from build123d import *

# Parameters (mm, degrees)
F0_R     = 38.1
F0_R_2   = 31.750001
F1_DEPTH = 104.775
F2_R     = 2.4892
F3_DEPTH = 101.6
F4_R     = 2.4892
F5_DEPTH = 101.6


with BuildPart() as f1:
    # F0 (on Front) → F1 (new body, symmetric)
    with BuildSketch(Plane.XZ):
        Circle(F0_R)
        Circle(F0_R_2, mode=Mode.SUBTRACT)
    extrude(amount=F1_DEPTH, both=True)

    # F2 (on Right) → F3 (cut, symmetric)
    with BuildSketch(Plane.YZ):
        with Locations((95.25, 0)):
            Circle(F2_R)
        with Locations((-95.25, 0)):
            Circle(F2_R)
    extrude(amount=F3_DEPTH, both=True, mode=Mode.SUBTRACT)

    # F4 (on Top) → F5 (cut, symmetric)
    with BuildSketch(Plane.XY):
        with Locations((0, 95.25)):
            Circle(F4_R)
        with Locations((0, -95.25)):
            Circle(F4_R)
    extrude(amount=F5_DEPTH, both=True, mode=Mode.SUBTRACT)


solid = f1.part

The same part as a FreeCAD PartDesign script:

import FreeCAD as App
import Part
import Sketcher

V = App.Vector
Q = App.Units.Quantity

doc = App.newDocument("Part")
body = doc.addObject("PartDesign::Body", "Body")

sketch1 = body.newObject("Sketcher::SketchObject", "Sketch")
sketch1.AttachmentSupport = (doc.getObject("XZ_Plane"), [""])
sketch1.MapMode = "FlatFace"
sketch1.addGeometry([
    Part.Circle(V(0, 0, 0), V(0, 0, 1), 38.1),
    Part.Circle(V(0, 0, 0), V(0, 0, 1), 31.750001),
], False)
sketch1.addConstraint([
    Sketcher.Constraint("Coincident", 0, 3, -1, 1),
    Sketcher.Constraint("Coincident", 1, 3, -1, 1),
    Sketcher.Constraint("Diameter", 0, Q("3 in")),
    Sketcher.Constraint("Diameter", 1, Q("2.5000001 in")),
])
pad1 = body.newObject("PartDesign::Pad", "Pad")
pad1.Profile = sketch1
pad1.Length = Q("8.25 in")
pad1.Midplane = True

sketch2 = body.newObject("Sketcher::SketchObject", "Sketch001")
sketch2.AttachmentSupport = (doc.getObject("YZ_Plane"), [""])
sketch2.MapMode = "FlatFace"
sketch2.addGeometry([
    Part.Circle(V(95.25, 0, 0), V(0, 0, 1), 2.4892),
    Part.Circle(V(-95.25, 0, 0), V(0, 0, 1), 2.4892),
], False)
sketch2.addConstraint([
    Sketcher.Constraint("Equal", 0, 1),
    Sketcher.Constraint("Symmetric", 0, 3, 1, 3, -1, 1),
    Sketcher.Constraint("PointOnObject", 0, 3, -1),
    Sketcher.Constraint("Diameter", 0, Q("0.196 in")),
    Sketcher.Constraint("DistanceX", 1, 3, 0, 3, Q("7.5 in")),
])
pocket1 = body.newObject("PartDesign::Pocket", "Pocket")
pocket1.Profile = sketch2
pocket1.Length = Q("8 in")
pocket1.Midplane = True

sketch3 = body.newObject("Sketcher::SketchObject", "Sketch002")
sketch3.AttachmentSupport = (doc.getObject("XY_Plane"), [""])
sketch3.MapMode = "FlatFace"
sketch3.addGeometry([
    Part.Circle(V(0, 95.25, 0), V(0, 0, 1), 2.4892),
    Part.Circle(V(0, -95.25, 0), V(0, 0, 1), 2.4892),
], False)
sketch3.addConstraint([
    Sketcher.Constraint("Equal", 0, 1),
    Sketcher.Constraint("Symmetric", 0, 3, 1, 3, -1, 1),
    Sketcher.Constraint("PointOnObject", 0, 3, -2),
    Sketcher.Constraint("Diameter", 0, Q("0.196 in")),
    Sketcher.Constraint("DistanceY", 1, 3, 0, 3, Q("7.5 in")),
])
pocket2 = body.newObject("PartDesign::Pocket", "Pocket001")
pocket2.Profile = sketch3
pocket2.Length = Q("8 in")
pocket2.Midplane = True

doc.recompute()
